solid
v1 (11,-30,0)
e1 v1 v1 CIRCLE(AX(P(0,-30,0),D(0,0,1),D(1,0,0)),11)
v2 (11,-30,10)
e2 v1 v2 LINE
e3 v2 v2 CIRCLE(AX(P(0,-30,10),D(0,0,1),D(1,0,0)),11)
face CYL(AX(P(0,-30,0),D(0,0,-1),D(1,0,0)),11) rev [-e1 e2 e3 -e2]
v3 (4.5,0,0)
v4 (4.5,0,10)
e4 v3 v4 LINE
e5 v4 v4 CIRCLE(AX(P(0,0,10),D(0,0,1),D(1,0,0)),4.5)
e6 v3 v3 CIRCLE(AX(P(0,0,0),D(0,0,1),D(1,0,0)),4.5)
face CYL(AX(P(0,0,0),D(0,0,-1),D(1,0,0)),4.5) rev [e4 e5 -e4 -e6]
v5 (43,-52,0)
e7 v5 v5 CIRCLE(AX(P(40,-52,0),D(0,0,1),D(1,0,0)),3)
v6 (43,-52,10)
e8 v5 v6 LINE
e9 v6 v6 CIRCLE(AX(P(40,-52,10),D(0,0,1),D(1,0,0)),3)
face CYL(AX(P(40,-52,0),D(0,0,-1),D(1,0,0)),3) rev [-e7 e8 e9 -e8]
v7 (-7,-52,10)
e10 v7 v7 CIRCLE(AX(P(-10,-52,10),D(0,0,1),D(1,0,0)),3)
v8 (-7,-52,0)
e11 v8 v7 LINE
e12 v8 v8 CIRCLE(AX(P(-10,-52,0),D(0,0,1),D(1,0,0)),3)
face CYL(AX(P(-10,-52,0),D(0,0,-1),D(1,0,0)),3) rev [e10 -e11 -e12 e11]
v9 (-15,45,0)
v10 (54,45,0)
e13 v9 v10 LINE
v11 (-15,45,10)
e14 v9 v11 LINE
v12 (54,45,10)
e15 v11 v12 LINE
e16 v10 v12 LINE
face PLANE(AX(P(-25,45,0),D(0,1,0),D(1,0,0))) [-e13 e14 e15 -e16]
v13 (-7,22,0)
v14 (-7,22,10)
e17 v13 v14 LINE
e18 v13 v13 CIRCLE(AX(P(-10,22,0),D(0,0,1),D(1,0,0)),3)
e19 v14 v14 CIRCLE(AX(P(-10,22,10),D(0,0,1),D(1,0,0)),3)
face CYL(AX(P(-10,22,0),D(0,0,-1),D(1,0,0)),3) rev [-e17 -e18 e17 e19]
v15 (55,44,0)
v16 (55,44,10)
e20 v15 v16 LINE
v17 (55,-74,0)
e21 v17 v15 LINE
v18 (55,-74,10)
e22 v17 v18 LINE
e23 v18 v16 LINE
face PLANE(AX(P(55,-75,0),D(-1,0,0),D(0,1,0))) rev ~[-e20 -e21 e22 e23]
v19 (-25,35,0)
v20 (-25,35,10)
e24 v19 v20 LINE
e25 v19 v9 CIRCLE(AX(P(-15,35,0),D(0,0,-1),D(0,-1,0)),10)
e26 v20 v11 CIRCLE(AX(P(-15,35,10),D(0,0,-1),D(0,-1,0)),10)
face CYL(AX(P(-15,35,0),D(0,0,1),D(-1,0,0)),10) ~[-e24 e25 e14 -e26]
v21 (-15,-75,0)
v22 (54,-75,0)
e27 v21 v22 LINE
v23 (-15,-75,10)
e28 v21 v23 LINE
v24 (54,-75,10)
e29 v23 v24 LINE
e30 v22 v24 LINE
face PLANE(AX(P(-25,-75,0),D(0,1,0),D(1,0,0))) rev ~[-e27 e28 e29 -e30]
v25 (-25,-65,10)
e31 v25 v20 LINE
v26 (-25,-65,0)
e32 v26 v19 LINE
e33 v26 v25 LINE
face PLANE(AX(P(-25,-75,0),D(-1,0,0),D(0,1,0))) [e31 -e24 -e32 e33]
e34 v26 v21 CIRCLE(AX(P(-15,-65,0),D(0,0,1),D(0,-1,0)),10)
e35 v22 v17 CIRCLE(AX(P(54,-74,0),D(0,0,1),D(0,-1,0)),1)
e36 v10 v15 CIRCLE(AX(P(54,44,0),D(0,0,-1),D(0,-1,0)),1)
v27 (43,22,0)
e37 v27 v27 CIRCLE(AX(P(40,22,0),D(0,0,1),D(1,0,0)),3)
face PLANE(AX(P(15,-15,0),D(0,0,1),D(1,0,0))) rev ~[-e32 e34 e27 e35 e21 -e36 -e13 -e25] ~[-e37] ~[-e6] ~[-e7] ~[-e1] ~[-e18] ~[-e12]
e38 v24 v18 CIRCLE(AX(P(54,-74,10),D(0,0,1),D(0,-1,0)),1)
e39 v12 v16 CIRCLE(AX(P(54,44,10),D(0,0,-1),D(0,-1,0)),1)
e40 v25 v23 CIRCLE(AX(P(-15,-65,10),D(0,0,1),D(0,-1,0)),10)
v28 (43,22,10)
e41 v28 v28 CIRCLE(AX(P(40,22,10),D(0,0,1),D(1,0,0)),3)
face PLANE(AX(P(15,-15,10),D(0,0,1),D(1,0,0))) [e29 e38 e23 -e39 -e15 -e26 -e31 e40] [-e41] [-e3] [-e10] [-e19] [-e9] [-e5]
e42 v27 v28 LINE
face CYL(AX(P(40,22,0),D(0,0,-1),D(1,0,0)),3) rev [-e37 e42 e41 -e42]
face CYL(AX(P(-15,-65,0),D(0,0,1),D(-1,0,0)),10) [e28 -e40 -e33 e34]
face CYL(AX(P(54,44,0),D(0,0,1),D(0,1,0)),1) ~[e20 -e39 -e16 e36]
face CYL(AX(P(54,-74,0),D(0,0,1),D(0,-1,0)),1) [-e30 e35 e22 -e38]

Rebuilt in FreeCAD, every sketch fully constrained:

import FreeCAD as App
import Part
import Sketcher
from FreeCAD import Vector
Q = App.Units.Quantity


def edges_at(feature, points):
    """Names of the edges that pass closest to the given points."""
    edges = feature.Shape.Edges
    near = lambda p: min(range(len(edges)), key=lambda i: edges[i].distToShape(Part.Vertex(*p))[0])
    return sorted({f"Edge{near(p) + 1}" for p in points})

doc = App.newDocument("Part")
body = doc.addObject("PartDesign::Body", "Body")

sketch1 = body.newObject("Sketcher::SketchObject", "Sketch")
sketch1.AttachmentSupport = (doc.getObject("XY_Plane"), [""])
sketch1.MapMode = "FlatFace"
sketch1.addGeometry([
    Part.LineSegment(Vector(-25, 45, 0), Vector(-25, -75, 0)),
    Part.LineSegment(Vector(-25, -75, 0), Vector(55, -75, 0)),
    Part.LineSegment(Vector(55, -75, 0), Vector(55, 45, 0)),
    Part.LineSegment(Vector(55, 45, 0), Vector(-25, 45, 0)),
    Part.Circle(Vector(-10, -52, 0), Vector(0, 0, 1), 3),
    Part.Circle(Vector(0, -30, 0), Vector(0, 0, 1), 11),
    Part.Circle(Vector(40, -52, 0), Vector(0, 0, 1), 3),
    Part.Circle(Vector(0, 0, 0), Vector(0, 0, 1), 4.5),
    Part.Circle(Vector(-10, 22, 0), Vector(0, 0, 1), 3),
    Part.Circle(Vector(40, 22, 0), Vector(0, 0, 1), 3),
], False)
sketch1.addConstraint([
    Sketcher.Constraint("Coincident", 0, 2, 1, 1),
    Sketcher.Constraint("Coincident", 1, 2, 2, 1),
    Sketcher.Constraint("Coincident", 2, 2, 3, 1),
    Sketcher.Constraint("Coincident", 3, 2, 0, 1),
    Sketcher.Constraint("Vertical", 0),
    Sketcher.Constraint("Horizontal", 1),
    Sketcher.Constraint("Vertical", 2),
    Sketcher.Constraint("Horizontal", 3),
    Sketcher.Constraint("Coincident", 7, 3, -1, 1),
    Sketcher.Constraint("Equal", 4, 6),
    Sketcher.Constraint("Equal", 6, 8),
    Sketcher.Constraint("Equal", 8, 9),
    Sketcher.Constraint("PointOnObject", 5, 3, -2),
    Sketcher.Constraint("Horizontal", 4, 3, 6, 3),
    Sketcher.Constraint("Horizontal", 8, 3, 9, 3),
    Sketcher.Constraint("Vertical", 4, 3, 8, 3),
    Sketcher.Constraint("Vertical", 6, 3, 9, 3),
    Sketcher.Constraint("Diameter", 4, Q("6 mm")),
    Sketcher.Constraint("Diameter", 5, Q("22 mm")),
    Sketcher.Constraint("Diameter", 7, Q("9 mm")),
    Sketcher.Constraint("DistanceX", 1, 1, 1, 2, Q("80 mm")),
    Sketcher.Constraint("DistanceY", 0, 2, 0, 1, Q("120 mm")),
    Sketcher.Constraint("DistanceX", 4, 3, -1, 1, Q("10 mm")),
    Sketcher.Constraint("DistanceY", 4, 3, -1, 1, Q("52 mm")),
    Sketcher.Constraint("DistanceY", 5, 3, -1, 1, Q("30 mm")),
    Sketcher.Constraint("DistanceX", -1, 1, 6, 3, Q("40 mm")),
    Sketcher.Constraint("DistanceY", -1, 1, 8, 3, Q("22 mm")),
    Sketcher.Constraint("DistanceX", 0, 2, -1, 1, Q("25 mm")),
    Sketcher.Constraint("DistanceY", 0, 2, -1, 1, Q("75 mm")),
])
pad1 = body.newObject("PartDesign::Pad", "Pad")
pad1.Profile = sketch1
pad1.Length = 10
doc.recompute()

fillet = body.newObject("PartDesign::Fillet", "Fillet")
fillet.Base = (pad1, edges_at(pad1, [(-25, -75, 5), (-25, 45, 5)]))
fillet.Radius = 10
doc.recompute()

fillet2 = body.newObject("PartDesign::Fillet", "Fillet001")
fillet2.Base = (fillet, edges_at(fillet, [(55, -75, 5), (55, 45, 5)]))
fillet2.Radius = 1

doc.recompute()
